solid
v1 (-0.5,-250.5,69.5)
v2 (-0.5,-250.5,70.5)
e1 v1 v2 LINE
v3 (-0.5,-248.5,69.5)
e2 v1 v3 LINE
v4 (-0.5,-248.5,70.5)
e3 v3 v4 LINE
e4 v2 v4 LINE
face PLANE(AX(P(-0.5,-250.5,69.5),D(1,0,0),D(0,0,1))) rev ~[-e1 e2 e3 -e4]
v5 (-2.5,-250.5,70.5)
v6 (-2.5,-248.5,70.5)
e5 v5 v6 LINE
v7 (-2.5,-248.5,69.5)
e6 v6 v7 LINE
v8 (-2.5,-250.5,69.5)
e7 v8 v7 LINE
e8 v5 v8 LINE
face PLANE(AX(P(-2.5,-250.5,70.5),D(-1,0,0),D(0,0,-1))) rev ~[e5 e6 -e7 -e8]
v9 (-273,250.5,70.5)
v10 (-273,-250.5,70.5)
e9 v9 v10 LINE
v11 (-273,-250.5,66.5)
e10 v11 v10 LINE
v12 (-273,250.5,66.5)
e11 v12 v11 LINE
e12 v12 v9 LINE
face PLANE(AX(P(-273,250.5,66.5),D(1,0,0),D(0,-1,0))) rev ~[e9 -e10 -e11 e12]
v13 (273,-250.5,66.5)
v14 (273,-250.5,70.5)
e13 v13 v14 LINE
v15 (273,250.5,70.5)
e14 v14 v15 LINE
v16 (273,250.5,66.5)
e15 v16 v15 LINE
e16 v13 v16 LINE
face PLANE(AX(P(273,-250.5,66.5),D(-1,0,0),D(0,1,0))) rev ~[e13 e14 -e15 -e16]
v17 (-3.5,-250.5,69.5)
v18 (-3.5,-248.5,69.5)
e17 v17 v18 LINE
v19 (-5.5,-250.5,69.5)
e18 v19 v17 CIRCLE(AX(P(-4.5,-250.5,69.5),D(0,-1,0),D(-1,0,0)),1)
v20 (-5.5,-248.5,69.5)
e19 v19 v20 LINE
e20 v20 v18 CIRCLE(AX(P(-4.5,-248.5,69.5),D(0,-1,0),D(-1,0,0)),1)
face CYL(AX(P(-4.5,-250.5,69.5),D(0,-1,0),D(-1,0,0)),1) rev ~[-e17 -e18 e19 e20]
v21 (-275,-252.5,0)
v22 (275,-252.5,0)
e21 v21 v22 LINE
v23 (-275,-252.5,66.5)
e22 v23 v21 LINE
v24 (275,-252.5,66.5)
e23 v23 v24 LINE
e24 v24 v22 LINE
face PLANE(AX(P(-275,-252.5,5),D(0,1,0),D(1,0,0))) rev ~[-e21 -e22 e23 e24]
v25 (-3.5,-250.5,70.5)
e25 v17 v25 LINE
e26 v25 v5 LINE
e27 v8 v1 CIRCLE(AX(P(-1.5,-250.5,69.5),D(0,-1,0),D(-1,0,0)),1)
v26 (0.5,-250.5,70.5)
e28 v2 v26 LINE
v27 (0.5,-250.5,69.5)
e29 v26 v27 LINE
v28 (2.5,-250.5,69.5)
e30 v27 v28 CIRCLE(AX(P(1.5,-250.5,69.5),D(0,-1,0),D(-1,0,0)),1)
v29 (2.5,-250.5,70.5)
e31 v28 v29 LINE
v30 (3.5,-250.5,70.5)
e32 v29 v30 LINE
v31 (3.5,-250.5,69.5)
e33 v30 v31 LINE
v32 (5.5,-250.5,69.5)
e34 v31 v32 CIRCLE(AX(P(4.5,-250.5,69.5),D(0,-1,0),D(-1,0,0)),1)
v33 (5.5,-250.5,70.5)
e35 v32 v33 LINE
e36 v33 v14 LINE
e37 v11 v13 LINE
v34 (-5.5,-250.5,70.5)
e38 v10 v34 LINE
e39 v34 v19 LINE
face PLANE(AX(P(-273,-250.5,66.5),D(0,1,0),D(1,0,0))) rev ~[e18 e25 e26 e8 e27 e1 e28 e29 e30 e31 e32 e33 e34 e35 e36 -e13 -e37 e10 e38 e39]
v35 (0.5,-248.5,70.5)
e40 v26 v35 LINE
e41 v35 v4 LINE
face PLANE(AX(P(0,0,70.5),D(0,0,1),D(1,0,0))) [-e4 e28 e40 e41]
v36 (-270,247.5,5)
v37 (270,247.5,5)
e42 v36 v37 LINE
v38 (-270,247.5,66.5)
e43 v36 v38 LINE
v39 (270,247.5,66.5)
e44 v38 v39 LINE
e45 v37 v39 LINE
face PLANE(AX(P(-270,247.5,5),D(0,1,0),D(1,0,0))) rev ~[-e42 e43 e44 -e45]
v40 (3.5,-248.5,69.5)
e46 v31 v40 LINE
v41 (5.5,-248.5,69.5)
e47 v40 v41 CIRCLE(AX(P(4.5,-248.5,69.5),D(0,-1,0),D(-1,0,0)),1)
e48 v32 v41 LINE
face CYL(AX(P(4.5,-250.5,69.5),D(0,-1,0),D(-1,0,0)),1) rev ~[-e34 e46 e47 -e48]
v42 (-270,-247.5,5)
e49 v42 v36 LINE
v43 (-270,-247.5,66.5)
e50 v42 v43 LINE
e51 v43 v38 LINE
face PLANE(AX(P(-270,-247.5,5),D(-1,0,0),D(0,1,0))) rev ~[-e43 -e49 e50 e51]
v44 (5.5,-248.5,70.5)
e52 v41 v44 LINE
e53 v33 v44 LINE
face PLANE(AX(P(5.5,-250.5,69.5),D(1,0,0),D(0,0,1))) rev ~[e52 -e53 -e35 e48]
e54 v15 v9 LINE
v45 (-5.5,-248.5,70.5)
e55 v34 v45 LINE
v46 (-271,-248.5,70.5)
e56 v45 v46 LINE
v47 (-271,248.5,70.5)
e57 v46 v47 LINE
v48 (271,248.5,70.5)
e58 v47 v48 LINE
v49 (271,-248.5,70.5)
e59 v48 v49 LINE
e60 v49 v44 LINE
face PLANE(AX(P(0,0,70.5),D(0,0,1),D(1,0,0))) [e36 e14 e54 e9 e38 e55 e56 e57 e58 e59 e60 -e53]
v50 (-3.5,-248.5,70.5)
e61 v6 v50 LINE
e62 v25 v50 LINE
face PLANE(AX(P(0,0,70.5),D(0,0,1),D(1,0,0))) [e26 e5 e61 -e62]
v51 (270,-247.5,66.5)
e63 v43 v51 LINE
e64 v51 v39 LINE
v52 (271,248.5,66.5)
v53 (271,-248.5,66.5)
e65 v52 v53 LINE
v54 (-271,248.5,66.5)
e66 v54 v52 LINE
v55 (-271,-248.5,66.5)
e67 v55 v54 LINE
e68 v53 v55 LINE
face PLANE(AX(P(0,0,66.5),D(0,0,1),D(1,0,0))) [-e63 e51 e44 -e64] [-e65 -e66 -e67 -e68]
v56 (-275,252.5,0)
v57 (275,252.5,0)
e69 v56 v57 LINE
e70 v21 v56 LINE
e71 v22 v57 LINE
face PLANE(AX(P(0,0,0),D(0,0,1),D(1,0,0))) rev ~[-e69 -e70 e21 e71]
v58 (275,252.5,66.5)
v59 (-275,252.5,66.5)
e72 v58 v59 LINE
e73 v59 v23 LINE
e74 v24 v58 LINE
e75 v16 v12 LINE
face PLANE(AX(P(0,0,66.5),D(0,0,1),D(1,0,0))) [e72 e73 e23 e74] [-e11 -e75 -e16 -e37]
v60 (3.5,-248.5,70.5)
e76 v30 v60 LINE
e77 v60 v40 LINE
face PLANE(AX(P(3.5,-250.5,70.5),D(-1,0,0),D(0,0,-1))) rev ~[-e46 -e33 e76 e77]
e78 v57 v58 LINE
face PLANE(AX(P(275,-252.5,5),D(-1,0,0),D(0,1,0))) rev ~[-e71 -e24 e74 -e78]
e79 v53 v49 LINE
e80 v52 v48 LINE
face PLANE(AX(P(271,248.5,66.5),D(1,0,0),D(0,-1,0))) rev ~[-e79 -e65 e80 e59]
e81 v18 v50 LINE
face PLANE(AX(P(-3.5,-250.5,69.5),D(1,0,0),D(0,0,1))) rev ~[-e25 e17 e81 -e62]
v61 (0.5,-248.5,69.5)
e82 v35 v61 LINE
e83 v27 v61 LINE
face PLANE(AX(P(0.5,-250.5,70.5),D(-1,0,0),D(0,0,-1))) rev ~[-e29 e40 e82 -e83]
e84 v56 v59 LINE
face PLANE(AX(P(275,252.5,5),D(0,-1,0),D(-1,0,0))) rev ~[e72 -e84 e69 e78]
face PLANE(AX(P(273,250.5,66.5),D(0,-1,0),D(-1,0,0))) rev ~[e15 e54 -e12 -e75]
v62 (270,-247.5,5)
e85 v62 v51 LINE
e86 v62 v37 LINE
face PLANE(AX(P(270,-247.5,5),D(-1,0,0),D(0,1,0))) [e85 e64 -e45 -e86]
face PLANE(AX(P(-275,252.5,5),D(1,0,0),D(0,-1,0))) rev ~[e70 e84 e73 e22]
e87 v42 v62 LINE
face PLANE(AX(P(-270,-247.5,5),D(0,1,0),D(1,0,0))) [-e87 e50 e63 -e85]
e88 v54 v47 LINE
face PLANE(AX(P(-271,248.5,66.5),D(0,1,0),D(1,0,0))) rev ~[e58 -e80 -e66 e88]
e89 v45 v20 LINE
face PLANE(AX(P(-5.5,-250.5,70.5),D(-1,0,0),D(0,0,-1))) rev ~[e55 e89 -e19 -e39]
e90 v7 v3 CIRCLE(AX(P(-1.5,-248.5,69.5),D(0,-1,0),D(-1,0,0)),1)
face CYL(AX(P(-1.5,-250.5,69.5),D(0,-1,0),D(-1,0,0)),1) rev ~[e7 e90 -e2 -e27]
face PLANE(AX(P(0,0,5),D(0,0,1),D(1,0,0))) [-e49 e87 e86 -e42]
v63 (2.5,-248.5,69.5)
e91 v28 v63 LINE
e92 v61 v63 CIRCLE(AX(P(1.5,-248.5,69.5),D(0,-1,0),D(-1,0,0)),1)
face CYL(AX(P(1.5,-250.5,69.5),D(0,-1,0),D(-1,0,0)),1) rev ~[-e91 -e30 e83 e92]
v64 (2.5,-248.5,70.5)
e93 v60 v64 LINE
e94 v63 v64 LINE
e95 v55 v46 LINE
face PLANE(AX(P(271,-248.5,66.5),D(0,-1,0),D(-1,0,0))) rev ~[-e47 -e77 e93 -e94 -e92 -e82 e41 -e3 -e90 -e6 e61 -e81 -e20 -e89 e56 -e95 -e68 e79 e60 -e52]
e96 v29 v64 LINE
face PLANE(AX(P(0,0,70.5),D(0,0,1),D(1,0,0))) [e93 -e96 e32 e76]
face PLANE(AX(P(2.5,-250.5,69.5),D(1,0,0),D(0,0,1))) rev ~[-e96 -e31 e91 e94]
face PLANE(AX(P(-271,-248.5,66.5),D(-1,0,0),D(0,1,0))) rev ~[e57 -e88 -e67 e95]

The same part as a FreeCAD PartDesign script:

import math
import FreeCAD as App
import Part
import Sketcher


def add_polygon(sketch, points):
    """Adds a closed chain of lines whose ends are joined by coincident constraints."""
    first, n = sketch.GeometryCount, len(points)
    for a, b in zip(points, points[1:] + points[:1]):
        sketch.addGeometry(Part.LineSegment(App.Vector(*a, 0), App.Vector(*b, 0)), False)
    for i in range(n):
        sketch.addConstraint(Sketcher.Constraint("Coincident", first + i, 2, first + (i + 1) % n, 1))

doc = App.newDocument("Part")
body = doc.addObject("PartDesign::Body", "Body")

sketch1 = body.newObject("Sketcher::SketchObject", "Sketch")
sketch1.AttachmentSupport = (doc.getObject("XY_Plane"), [""])
sketch1.MapMode = "FlatFace"
add_polygon(sketch1, [(-275, 252), (-275, -252), (275, -252), (275, 252)])
sketch1.addConstraint([
    Sketcher.Constraint("Vertical", 0),
    Sketcher.Constraint("Horizontal", 1),
    Sketcher.Constraint("Vertical", 2),
    Sketcher.Constraint("Horizontal", 3),
    Sketcher.Constraint("Symmetric", 0, 2, 2, 2, -1, 1),
    Sketcher.Constraint("DistanceX", 1, 1, 1, 2, 550.0),
    Sketcher.Constraint("DistanceY", 0, 2, 0, 1, 505.0),
])
pad1 = body.newObject("PartDesign::Pad", "Pad")
pad1.Profile = sketch1
pad1.Length = 5

sketch2 = body.newObject("Sketcher::SketchObject", "Sketch001")
sketch2.AttachmentSupport = (doc.getObject("XY_Plane"), [""])
sketch2.MapMode = "FlatFace"
sketch2.AttachmentOffset = App.Placement(App.Vector(0, 0, 5), App.Rotation())
add_polygon(sketch2, [(275, -252), (275, 252), (-275, 252), (-275, -252)])
add_polygon(sketch2, [(270, -248), (-270, -248), (-270, 248), (270, 248)])
sketch2.addConstraint([
    Sketcher.Constraint("Vertical", 0),
    Sketcher.Constraint("Horizontal", 1),
    Sketcher.Constraint("Vertical", 2),
    Sketcher.Constraint("Horizontal", 3),
    Sketcher.Constraint("Horizontal", 4),
    Sketcher.Constraint("Vertical", 5),
    Sketcher.Constraint("Horizontal", 6),
    Sketcher.Constraint("Vertical", 7),
    Sketcher.Constraint("Symmetric", 0, 2, 2, 2, -1, 1),
    Sketcher.Constraint("Symmetric", 4, 2, 6, 2, -1, 1),
    Sketcher.Constraint("DistanceX", 1, 2, 1, 1, 550.0),
    Sketcher.Constraint("DistanceX", 4, 2, 4, 1, 540.0),
    Sketcher.Constraint("DistanceY", 0, 1, 0, 2, 505.0),
    Sketcher.Constraint("DistanceY", 5, 1, 5, 2, 495.0),
])
pad2 = body.newObject("PartDesign::Pad", "Pad001")
pad2.Profile = sketch2
pad2.Length = 61.5

sketch3 = body.newObject("Sketcher::SketchObject", "Sketch002")
sketch3.AttachmentSupport = (doc.getObject("XY_Plane"), [""])
sketch3.MapMode = "FlatFace"
sketch3.AttachmentOffset = App.Placement(App.Vector(0, 0, 66.5), App.Rotation())
add_polygon(sketch3, [(273, 250), (-273, 250), (-273, -250), (273, -250)])
add_polygon(sketch3, [(271, -248), (-271, -248), (-271, 248), (271, 248)])
sketch3.addConstraint([
    Sketcher.Constraint("Horizontal", 0),
    Sketcher.Constraint("Vertical", 1),
    Sketcher.Constraint("Horizontal", 2),
    Sketcher.Constraint("Vertical", 3),
    Sketcher.Constraint("Horizontal", 4),
    Sketcher.Constraint("Vertical", 5),
    Sketcher.Constraint("Horizontal", 6),
    Sketcher.Constraint("Vertical", 7),
    Sketcher.Constraint("Symmetric", 0, 2, 2, 2, -1, 1),
    Sketcher.Constraint("Symmetric", 4, 2, 6, 2, -1, 1),
    Sketcher.Constraint("DistanceX", 0, 2, 0, 1, 546.0),
    Sketcher.Constraint("DistanceX", 4, 2, 4, 1, 542.0),
    Sketcher.Constraint("DistanceY", 1, 2, 1, 1, 501.0),
    Sketcher.Constraint("DistanceY", 5, 1, 5, 2, 497.0),
])
pad3 = body.newObject("PartDesign::Pad", "Pad002")
pad3.Profile = sketch3
pad3.Length = 4

sketch4 = body.newObject("Sketcher::SketchObject", "Sketch003")
sketch4.AttachmentSupport = (doc.getObject("XZ_Plane"), [""])
sketch4.MapMode = "FlatFace"
sketch4.AttachmentOffset = App.Placement(App.Vector(0, 0, 250.5), App.Rotation())
sketch4.addGeometry([
    Part.LineSegment(App.Vector(3.5, 70.5, 0), App.Vector(3.5, 69.5, 0)),
    Part.ArcOfCircle(Part.Circle(App.Vector(4.5, 69.5, 0), App.Vector(0, 0, 1), 1), math.radians(180), math.radians(360)),
    Part.LineSegment(App.Vector(5.5, 69.5, 0), App.Vector(5.5, 70.5, 0)),
    Part.LineSegment(App.Vector(5.5, 70.5, 0), App.Vector(3.5, 70.5, 0)),
    Part.LineSegment(App.Vector(0.5, 70.5, 0), App.Vector(0.5, 69.5, 0)),
    Part.ArcOfCircle(Part.Circle(App.Vector(1.5, 69.5, 0), App.Vector(0, 0, 1), 1), math.radians(180), math.radians(360)),
    Part.LineSegment(App.Vector(2.5, 69.5, 0), App.Vector(2.5, 70.5, 0)),
    Part.LineSegment(App.Vector(2.5, 70.5, 0), App.Vector(0.5, 70.5, 0)),
    Part.LineSegment(App.Vector(-3.5, 69.5, 0), App.Vector(-3.5, 70.5, 0)),
    Part.LineSegment(App.Vector(-3.5, 70.5, 0), App.Vector(-5.5, 70.5, 0)),
    Part.LineSegment(App.Vector(-5.5, 70.5, 0), App.Vector(-5.5, 69.5, 0)),
    Part.ArcOfCircle(Part.Circle(App.Vector(-4.5, 69.5, 0), App.Vector(0, 0, 1), 1), math.radians(180), math.radians(360)),
    Part.LineSegment(App.Vector(-0.5, 69.5, 0), App.Vector(-0.5, 70.5, 0)),
    Part.LineSegment(App.Vector(-0.5, 70.5, 0), App.Vector(-2.5, 70.5, 0)),
    Part.LineSegment(App.Vector(-2.5, 70.5, 0), App.Vector(-2.5, 69.5, 0)),
    Part.ArcOfCircle(Part.Circle(App.Vector(-1.5, 69.5, 0), App.Vector(0, 0, 1), 1), math.radians(180), math.radians(360)),
], False)
sketch4.addConstraint([
    Sketcher.Constraint("Tangent", 0, 2, 1, 1),
    Sketcher.Constraint("Tangent", 1, 2, 2, 1),
    Sketcher.Constraint("Coincident", 2, 2, 3, 1),
    Sketcher.Constraint("Coincident", 3, 2, 0, 1),
    Sketcher.Constraint("Tangent", 4, 2, 5, 1),
    Sketcher.Constraint("Tangent", 5, 2, 6, 1),
    Sketcher.Constraint("Coincident", 6, 2, 7, 1),
    Sketcher.Constraint("Coincident", 7, 2, 4, 1),
    Sketcher.Constraint("Coincident", 8, 2, 9, 1),
    Sketcher.Constraint("Coincident", 9, 2, 10, 1),
    Sketcher.Constraint("Tangent", 10, 2, 11, 1),
    Sketcher.Constraint("Tangent", 11, 2, 8, 1),
    Sketcher.Constraint("Coincident", 12, 2, 13, 1),
    Sketcher.Constraint("Coincident", 13, 2, 14, 1),
    Sketcher.Constraint("Tangent", 14, 2, 15, 1),
    Sketcher.Constraint("Tangent", 15, 2, 12, 1),
    Sketcher.Constraint("Vertical", 0),
    Sketcher.Constraint("Vertical", 2),
    Sketcher.Constraint("Horizontal", 3),
    Sketcher.Constraint("Vertical", 4),
    Sketcher.Constraint("Vertical", 6),
    Sketcher.Constraint("Horizontal", 7),
    Sketcher.Constraint("Vertical", 8),
    Sketcher.Constraint("Horizontal", 9),
    Sketcher.Constraint("Vertical", 10),
    Sketcher.Constraint("Vertical", 12),
    Sketcher.Constraint("Horizontal", 13),
    Sketcher.Constraint("Vertical", 14),
    Sketcher.Constraint("Equal", 1, 5),
    Sketcher.Constraint("Equal", 5, 11),
    Sketcher.Constraint("Equal", 11, 15),
    Sketcher.Constraint("Symmetric", 1, 3, 11, 3, -2),
    Sketcher.Constraint("Symmetric", 5, 3, 15, 3, -2),
    Sketcher.Constraint("Horizontal", 1, 3, 5, 3),
    Sketcher.Constraint("Horizontal", 3, 2, 6, 2),
    Sketcher.Constraint("Horizontal", 7, 2, 8, 2),
    Sketcher.Constraint("Horizontal", 9, 2, 12, 2),
    Sketcher.Constraint("Radius", 1, 1.0),
    Sketcher.Constraint("DistanceY", 0, 2, 0, 1, 1.0),
    Sketcher.Constraint("DistanceX", 5, 3, 1, 3, 3.0),
    Sketcher.Constraint("DistanceX", 11, 3, 5, 3, 6.0),
    Sketcher.Constraint("DistanceY", -1, 1, 1, 3, 69.5),
])
pocket1 = body.newObject("PartDesign::Pocket", "Pocket")
pocket1.Profile = sketch4
pocket1.Length = 25.4

doc.recompute()
